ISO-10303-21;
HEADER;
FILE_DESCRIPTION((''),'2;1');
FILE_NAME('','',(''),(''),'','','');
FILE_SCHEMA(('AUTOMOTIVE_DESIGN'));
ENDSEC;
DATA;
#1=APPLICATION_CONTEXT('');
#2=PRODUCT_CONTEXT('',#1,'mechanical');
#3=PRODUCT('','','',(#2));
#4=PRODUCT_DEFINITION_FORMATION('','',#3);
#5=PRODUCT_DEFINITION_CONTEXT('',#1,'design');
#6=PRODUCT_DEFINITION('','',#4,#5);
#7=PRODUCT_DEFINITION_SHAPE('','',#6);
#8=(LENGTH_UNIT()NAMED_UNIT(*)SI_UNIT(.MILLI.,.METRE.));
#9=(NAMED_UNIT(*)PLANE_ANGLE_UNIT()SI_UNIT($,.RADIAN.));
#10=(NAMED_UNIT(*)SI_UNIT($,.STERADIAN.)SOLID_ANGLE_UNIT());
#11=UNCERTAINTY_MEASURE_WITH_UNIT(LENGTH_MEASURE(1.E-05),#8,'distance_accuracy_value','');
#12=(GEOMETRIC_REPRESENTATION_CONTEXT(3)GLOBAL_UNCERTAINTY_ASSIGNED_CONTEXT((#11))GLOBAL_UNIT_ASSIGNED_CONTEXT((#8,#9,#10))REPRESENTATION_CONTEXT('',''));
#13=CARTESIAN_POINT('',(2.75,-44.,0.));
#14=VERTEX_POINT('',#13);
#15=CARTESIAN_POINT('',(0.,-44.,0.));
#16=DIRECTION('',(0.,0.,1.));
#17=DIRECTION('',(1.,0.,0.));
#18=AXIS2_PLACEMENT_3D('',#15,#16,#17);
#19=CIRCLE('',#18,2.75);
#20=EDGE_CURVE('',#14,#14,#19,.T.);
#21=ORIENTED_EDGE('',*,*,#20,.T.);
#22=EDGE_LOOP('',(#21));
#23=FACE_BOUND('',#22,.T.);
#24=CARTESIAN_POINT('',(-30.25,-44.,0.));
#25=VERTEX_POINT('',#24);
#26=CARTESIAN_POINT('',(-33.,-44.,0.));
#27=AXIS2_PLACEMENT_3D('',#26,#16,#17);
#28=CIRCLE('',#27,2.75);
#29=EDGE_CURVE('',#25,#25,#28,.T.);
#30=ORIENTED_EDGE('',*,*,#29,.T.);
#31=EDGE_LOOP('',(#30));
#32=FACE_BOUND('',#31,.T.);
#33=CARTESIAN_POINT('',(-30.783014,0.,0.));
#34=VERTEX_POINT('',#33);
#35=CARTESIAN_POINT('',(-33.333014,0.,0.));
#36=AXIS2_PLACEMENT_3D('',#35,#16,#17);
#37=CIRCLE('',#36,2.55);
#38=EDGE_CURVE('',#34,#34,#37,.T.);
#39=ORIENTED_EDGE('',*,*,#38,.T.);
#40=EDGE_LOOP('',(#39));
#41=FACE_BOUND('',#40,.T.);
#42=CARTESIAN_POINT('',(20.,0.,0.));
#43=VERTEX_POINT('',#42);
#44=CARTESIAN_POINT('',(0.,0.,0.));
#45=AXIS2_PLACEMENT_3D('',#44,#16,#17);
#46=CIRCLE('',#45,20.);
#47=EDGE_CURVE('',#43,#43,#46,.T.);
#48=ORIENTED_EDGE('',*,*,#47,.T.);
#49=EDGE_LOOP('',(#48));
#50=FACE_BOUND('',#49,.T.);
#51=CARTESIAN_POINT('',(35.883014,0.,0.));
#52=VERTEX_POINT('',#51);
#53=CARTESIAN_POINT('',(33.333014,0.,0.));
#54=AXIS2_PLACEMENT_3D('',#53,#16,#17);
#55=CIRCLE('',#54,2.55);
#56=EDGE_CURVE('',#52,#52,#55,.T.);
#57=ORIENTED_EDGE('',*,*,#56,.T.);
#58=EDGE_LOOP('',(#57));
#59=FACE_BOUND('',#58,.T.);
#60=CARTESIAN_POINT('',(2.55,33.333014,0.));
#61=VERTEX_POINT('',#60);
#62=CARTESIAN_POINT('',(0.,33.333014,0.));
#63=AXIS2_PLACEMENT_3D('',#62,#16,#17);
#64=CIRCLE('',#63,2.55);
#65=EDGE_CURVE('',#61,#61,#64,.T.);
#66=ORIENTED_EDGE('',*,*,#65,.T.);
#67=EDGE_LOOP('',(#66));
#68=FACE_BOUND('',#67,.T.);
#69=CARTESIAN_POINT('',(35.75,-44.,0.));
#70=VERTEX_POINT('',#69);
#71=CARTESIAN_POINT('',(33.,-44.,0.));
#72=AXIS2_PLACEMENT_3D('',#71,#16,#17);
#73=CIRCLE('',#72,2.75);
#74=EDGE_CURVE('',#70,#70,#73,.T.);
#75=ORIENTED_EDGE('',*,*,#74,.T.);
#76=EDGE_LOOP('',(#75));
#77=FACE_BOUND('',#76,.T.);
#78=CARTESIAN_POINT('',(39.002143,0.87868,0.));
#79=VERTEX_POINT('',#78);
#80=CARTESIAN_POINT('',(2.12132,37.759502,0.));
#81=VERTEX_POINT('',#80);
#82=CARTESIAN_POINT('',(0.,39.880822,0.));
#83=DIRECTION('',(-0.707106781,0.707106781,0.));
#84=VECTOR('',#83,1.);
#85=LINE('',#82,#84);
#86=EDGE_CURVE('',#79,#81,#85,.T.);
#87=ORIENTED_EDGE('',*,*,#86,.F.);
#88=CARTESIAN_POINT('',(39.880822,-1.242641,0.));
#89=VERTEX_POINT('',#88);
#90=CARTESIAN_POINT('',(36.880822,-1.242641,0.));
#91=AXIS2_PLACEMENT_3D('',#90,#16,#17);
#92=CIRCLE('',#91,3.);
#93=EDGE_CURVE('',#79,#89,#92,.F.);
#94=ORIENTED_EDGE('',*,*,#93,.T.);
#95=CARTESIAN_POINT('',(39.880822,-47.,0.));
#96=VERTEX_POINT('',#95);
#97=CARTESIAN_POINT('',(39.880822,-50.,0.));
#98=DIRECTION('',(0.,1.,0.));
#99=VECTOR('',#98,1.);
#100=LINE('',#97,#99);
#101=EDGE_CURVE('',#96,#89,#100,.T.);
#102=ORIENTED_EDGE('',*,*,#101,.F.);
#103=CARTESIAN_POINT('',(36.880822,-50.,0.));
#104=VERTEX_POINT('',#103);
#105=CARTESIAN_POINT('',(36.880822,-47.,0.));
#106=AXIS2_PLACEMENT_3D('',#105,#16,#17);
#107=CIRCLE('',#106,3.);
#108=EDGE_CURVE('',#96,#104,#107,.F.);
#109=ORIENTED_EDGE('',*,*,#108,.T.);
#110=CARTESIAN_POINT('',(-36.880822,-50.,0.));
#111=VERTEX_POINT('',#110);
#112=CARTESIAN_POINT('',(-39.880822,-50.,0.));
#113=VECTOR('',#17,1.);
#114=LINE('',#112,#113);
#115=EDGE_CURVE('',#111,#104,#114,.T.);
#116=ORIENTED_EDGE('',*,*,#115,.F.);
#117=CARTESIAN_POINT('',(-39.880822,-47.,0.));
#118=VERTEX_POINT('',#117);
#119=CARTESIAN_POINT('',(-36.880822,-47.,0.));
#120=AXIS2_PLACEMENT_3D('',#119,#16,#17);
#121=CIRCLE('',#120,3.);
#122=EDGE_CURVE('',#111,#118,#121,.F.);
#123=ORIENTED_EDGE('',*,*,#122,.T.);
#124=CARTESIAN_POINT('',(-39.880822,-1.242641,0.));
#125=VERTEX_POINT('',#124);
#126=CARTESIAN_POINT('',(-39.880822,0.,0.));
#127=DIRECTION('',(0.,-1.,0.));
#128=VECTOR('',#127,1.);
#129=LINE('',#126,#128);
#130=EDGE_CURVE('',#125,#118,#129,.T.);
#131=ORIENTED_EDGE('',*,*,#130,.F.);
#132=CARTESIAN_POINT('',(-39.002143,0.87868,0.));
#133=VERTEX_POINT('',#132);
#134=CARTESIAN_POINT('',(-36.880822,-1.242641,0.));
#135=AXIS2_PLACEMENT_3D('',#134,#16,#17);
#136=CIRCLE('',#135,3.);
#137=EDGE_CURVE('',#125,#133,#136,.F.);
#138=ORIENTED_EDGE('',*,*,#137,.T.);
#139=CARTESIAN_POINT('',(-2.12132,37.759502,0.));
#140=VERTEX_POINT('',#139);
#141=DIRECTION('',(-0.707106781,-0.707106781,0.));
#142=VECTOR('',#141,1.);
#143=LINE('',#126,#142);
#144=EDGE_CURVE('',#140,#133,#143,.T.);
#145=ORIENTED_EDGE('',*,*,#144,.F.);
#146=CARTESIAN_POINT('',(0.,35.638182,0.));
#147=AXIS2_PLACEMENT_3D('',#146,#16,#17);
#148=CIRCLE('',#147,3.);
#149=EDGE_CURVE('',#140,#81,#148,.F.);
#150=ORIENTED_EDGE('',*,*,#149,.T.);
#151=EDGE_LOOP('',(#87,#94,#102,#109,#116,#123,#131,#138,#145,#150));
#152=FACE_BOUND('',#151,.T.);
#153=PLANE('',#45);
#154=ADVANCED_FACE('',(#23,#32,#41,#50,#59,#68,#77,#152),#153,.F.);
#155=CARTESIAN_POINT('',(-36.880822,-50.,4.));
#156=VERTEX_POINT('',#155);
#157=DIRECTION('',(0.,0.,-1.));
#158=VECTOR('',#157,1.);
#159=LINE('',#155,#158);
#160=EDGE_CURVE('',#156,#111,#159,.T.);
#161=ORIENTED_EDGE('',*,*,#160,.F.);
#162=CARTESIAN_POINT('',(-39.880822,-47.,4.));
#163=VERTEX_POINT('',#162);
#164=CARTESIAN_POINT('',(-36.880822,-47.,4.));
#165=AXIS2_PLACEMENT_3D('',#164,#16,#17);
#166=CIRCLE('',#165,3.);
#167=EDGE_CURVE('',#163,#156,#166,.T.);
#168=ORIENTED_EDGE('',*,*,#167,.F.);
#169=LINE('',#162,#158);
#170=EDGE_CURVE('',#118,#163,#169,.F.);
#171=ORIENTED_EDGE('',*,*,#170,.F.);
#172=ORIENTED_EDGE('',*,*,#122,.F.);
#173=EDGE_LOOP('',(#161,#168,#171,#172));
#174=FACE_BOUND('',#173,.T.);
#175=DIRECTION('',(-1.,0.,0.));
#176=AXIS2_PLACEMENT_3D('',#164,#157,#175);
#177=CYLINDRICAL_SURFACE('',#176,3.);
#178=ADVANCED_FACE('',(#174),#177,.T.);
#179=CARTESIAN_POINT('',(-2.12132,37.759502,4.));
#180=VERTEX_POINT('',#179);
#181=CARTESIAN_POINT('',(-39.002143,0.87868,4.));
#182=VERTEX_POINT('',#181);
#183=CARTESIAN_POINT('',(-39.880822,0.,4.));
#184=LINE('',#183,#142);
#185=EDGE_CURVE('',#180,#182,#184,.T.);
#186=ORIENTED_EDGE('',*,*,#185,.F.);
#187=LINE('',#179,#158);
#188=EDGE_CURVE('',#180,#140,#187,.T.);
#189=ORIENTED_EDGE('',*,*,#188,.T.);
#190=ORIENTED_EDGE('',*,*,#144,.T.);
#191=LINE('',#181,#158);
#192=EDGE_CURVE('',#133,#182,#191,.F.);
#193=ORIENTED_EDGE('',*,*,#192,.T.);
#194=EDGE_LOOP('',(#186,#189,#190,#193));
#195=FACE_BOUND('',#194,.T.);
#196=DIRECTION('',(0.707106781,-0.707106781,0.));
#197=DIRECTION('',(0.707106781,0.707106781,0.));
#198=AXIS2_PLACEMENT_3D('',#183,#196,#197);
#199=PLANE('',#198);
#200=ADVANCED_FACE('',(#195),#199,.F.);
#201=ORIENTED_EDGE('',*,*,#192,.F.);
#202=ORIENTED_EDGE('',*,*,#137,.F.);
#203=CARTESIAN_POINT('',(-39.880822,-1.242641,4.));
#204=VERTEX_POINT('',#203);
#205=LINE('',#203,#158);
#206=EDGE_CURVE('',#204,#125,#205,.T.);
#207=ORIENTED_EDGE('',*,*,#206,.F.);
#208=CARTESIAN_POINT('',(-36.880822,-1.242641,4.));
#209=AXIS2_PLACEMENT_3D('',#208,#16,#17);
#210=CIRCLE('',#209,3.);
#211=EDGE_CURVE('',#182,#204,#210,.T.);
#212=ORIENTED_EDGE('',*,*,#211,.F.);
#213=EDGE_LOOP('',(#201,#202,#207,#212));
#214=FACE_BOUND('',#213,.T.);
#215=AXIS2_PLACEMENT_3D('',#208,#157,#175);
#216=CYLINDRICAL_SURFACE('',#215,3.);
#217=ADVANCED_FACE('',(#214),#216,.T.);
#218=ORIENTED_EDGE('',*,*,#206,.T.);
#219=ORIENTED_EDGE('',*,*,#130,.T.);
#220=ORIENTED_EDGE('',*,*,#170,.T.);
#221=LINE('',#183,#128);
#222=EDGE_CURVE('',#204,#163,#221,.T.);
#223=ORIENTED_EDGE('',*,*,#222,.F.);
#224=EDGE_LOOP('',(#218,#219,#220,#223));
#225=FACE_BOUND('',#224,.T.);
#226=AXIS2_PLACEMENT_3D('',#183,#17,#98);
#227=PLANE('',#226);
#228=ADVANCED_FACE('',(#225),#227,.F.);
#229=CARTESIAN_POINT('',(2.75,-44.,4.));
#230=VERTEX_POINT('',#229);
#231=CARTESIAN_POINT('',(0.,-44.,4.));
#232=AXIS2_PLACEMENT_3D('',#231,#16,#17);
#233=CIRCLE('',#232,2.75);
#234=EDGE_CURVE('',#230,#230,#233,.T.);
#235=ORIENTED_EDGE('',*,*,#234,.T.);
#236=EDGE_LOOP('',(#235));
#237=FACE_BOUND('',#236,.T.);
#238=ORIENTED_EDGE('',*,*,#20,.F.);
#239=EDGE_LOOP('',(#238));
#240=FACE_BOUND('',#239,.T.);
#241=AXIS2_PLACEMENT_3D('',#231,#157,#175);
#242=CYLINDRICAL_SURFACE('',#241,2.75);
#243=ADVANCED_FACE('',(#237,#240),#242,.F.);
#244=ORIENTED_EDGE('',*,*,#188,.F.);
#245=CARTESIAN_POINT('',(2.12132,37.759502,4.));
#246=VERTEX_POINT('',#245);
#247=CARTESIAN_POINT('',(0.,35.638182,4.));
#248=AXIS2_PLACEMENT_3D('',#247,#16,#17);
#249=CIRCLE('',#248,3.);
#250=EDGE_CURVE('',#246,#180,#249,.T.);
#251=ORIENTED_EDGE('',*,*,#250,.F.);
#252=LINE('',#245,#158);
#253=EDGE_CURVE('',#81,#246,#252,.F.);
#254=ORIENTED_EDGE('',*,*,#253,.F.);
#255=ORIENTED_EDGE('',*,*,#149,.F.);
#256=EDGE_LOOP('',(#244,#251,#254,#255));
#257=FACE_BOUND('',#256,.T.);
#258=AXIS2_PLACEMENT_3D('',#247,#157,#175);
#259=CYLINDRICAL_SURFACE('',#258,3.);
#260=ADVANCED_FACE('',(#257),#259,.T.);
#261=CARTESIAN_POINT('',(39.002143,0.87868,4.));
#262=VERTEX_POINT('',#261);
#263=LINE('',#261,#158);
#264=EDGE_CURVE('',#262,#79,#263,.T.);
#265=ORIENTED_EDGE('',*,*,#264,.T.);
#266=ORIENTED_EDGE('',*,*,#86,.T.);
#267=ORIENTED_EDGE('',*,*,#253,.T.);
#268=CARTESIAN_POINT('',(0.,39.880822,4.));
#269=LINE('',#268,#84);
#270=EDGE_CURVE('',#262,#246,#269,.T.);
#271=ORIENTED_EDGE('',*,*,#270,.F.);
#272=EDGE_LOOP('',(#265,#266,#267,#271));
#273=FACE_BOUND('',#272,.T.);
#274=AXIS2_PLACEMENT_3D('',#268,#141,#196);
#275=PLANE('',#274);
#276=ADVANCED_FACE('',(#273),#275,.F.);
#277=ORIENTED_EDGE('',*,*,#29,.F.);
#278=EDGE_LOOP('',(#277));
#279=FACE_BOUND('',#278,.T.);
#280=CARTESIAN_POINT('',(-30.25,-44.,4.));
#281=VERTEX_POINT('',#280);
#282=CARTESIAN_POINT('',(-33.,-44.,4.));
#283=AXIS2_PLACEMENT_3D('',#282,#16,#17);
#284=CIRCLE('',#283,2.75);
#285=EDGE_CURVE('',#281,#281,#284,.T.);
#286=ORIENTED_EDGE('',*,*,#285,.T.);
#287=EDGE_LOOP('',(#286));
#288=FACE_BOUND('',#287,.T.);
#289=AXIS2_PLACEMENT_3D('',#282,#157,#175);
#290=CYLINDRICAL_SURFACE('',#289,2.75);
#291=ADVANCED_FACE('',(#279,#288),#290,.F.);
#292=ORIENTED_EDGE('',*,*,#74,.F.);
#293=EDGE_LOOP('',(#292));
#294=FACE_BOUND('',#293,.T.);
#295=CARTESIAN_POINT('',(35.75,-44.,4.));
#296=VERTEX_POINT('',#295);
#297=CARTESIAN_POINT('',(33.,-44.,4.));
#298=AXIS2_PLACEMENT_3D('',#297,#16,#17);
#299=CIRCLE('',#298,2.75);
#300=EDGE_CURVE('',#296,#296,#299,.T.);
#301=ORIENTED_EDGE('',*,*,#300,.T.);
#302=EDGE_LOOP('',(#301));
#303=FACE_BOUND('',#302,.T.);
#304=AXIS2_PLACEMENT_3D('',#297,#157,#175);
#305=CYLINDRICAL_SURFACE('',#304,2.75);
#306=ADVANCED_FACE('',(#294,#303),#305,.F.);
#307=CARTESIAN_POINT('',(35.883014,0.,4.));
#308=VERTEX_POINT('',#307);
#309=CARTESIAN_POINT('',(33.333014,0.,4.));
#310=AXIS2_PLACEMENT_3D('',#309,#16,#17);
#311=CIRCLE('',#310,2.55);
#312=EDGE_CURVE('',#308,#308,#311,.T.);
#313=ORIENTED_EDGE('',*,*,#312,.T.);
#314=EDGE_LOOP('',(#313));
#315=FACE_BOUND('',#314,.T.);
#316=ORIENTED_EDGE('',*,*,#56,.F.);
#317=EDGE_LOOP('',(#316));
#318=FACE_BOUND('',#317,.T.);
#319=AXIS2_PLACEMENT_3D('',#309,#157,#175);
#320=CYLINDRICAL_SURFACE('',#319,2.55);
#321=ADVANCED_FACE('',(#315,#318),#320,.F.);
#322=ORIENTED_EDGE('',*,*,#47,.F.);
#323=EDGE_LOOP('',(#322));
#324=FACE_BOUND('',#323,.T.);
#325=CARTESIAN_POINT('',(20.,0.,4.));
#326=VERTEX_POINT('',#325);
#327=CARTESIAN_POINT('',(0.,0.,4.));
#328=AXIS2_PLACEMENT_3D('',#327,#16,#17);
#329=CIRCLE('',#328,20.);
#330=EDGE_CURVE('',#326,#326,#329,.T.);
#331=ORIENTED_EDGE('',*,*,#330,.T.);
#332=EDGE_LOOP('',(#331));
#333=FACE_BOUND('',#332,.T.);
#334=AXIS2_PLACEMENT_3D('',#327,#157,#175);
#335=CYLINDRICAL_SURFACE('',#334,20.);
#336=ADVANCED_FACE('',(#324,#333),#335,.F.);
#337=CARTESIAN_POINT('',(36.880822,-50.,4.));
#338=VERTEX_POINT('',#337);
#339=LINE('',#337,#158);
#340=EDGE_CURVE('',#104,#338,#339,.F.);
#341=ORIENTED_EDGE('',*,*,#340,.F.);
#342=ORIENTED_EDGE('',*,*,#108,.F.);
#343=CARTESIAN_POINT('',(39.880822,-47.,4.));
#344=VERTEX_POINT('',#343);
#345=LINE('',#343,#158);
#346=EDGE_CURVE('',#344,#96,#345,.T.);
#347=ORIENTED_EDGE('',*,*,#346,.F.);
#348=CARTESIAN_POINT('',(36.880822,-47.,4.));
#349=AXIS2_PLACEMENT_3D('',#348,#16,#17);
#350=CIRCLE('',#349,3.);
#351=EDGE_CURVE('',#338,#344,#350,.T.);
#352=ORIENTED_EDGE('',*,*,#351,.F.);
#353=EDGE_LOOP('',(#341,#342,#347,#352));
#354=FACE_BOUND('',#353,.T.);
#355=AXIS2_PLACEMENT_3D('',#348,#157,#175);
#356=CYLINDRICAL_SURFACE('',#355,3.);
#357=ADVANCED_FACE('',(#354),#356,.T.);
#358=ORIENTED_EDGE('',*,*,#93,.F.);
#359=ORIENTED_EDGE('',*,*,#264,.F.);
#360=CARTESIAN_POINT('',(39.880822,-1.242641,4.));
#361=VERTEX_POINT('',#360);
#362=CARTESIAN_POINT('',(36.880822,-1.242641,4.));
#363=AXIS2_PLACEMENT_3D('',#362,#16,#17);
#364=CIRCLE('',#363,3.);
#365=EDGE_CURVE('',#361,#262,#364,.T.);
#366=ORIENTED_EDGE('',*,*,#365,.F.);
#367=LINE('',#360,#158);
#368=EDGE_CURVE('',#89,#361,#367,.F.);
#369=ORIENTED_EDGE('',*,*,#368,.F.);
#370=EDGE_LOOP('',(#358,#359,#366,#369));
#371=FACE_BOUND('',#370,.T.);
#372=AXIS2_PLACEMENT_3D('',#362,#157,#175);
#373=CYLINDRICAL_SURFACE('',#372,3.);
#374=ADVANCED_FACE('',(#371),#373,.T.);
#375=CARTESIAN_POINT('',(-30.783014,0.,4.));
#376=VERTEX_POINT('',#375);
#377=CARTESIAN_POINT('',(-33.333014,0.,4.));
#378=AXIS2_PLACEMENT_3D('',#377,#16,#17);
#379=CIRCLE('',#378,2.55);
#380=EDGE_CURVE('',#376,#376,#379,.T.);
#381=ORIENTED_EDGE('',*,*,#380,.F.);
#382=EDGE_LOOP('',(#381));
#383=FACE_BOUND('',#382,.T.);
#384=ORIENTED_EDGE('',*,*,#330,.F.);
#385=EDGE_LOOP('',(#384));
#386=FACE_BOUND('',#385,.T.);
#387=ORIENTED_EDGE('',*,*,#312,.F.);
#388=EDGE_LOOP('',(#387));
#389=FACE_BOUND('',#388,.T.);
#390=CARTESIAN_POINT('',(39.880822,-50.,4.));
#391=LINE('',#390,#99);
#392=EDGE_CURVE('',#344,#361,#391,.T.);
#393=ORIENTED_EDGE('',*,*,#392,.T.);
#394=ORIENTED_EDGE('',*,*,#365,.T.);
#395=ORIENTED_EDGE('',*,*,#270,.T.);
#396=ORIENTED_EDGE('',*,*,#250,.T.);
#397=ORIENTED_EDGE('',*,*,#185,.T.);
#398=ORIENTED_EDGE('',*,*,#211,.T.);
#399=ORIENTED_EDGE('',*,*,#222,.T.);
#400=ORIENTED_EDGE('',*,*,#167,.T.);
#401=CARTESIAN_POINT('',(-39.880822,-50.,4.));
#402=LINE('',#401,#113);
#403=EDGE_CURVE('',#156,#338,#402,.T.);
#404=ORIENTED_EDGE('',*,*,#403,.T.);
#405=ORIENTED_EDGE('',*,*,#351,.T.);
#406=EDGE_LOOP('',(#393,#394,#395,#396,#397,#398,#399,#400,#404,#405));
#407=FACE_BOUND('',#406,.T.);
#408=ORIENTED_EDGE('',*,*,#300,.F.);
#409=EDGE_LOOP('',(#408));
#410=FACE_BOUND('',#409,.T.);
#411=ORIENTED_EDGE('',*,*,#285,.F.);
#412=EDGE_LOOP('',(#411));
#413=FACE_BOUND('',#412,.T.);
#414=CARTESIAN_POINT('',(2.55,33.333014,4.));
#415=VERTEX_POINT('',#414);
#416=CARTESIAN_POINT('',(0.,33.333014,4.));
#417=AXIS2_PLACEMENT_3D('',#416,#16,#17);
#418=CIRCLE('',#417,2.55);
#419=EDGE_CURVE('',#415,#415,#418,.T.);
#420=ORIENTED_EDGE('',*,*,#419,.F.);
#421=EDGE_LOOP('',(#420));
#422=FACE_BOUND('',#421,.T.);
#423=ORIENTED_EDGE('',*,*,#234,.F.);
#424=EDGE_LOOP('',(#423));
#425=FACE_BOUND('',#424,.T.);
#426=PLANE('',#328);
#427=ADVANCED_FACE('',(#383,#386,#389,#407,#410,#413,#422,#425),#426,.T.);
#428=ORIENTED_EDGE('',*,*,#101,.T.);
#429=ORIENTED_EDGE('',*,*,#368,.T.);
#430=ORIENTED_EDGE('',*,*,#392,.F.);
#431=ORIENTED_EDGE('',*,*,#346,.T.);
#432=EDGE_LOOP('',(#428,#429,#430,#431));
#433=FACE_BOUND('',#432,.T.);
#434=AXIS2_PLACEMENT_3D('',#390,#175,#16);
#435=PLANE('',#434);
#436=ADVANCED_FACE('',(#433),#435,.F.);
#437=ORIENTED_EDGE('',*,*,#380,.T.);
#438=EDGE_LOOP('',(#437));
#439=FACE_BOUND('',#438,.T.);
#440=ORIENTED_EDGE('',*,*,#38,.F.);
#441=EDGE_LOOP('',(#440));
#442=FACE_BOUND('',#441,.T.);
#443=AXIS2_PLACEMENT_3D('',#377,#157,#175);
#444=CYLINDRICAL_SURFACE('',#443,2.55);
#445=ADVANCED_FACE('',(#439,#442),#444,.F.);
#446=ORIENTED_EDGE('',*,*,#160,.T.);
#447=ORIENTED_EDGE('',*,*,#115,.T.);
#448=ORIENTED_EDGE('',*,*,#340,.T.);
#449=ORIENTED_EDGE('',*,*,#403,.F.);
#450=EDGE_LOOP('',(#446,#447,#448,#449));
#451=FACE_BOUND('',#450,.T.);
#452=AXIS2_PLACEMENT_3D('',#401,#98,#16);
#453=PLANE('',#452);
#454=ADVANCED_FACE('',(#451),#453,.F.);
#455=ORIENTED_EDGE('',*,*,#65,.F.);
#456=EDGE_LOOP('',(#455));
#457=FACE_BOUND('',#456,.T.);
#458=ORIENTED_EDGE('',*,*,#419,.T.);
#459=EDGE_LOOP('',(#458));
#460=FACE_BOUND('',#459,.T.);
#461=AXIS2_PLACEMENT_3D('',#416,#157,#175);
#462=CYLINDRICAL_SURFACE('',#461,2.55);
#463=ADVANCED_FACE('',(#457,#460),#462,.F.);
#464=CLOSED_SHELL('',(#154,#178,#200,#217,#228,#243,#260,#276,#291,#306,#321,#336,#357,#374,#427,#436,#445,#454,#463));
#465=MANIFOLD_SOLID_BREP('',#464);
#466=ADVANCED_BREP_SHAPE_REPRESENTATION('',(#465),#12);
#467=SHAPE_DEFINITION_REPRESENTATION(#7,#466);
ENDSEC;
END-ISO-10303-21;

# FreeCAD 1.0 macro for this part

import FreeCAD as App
import Part
import Sketcher

V = App.Vector


def edges_at(feature, points):
    """Names of the edges that pass closest to the given points."""
    edges = feature.Shape.Edges
    near = lambda p: min(range(len(edges)), key=lambda i: edges[i].distToShape(Part.Vertex(*p))[0])
    return sorted({f"Edge{near(p) + 1}" for p in points})

doc = App.newDocument("Part")
params = doc.addObject("Spreadsheet::Sheet", "Params")
for row, (alias, value) in enumerate([
    ("sketch1_diameter", "40 mm"),
    ("sketch1_diameter2", "5.5 mm"),
    ("sketch1_diameter3", "5.1 mm"),
    ("sketch1_height", "50 mm"),
    ("sketch1_length", "56.4 mm"),
    ("pad1_length", "4 mm"),
    ("fillet_radius", "3 mm"),
], start=1):
    params.set(f"A{row}", alias)
    params.set(f"B{row}", "=" + value)
    params.setAlias(f"B{row}", alias)

body = doc.addObject("PartDesign::Body", "Body")

# Sketch on XY plane
sketch1 = doc.addObject("Sketcher::SketchObject", "Sketch")
body.addObject(sketch1)
sketch1.AttachmentSupport = (doc.XY_Plane, [""])
sketch1.MapMode = "FlatFace"
sketch1.addGeometry(Part.LineSegment(V(0, 39.880822, 0), V(-39.880822, 0, 0)), False)
sketch1.addGeometry(Part.LineSegment(V(-39.880822, 0, 0), V(-39.880822, -50, 0)), False)
sketch1.addGeometry(Part.LineSegment(V(-39.880822, -50, 0), V(39.880822, -50, 0)), False)
sketch1.addGeometry(Part.LineSegment(V(39.880822, -50, 0), V(39.880822, 0, 0)), False)
sketch1.addGeometry(Part.LineSegment(V(39.880822, 0, 0), V(0, 39.880822, 0)), False)
sketch1.addGeometry(Part.Circle(V(33, -44, 0), V(0, 0, 1), 2.75), False)
sketch1.addGeometry(Part.Circle(V(0, -44, 0), V(0, 0, 1), 2.75), False)
sketch1.addGeometry(Part.Circle(V(-33, -44, 0), V(0, 0, 1), 2.75), False)
sketch1.addGeometry(Part.Circle(V(33.333014, 0, 0), V(0, 0, 1), 2.55), False)
sketch1.addGeometry(Part.Circle(V(0, 0, 0), V(0, 0, 1), 20), False)
sketch1.addGeometry(Part.Circle(V(0, 33.333014, 0), V(0, 0, 1), 2.55), False)
sketch1.addGeometry(Part.Circle(V(-33.333014, 0, 0), V(0, 0, 1), 2.55), False)
sketch1.addConstraint(Sketcher.Constraint("Coincident", 0, 2, 1, 1))
sketch1.addConstraint(Sketcher.Constraint("Coincident", 1, 2, 2, 1))
sketch1.addConstraint(Sketcher.Constraint("Coincident", 2, 2, 3, 1))
sketch1.addConstraint(Sketcher.Constraint("Coincident", 3, 2, 4, 1))
sketch1.addConstraint(Sketcher.Constraint("Coincident", 4, 2, 0, 1))
sketch1.addConstraint(Sketcher.Constraint("Vertical", 1))
sketch1.addConstraint(Sketcher.Constraint("Horizontal", 2))
sketch1.addConstraint(Sketcher.Constraint("Vertical", 3))
sketch1.addConstraint(Sketcher.Constraint("Coincident", 9, 3, -1, 1))
sketch1.addConstraint(Sketcher.Constraint("Equal", 5, 6))
sketch1.addConstraint(Sketcher.Constraint("Equal", 6, 7))
sketch1.addConstraint(Sketcher.Constraint("Equal", 8, 10))
sketch1.addConstraint(Sketcher.Constraint("Equal", 10, 11))
sketch1.addConstraint(Sketcher.Constraint("Symmetric", 8, 3, 11, 3, -1, 1))
sketch1.addConstraint(Sketcher.Constraint("Symmetric", 0, 2, 3, 2, -1, 1))
sketch1.addConstraint(Sketcher.Constraint("Symmetric", 5, 3, 7, 3, -2))
sketch1.addConstraint(Sketcher.Constraint("PointOnObject", 6, 3, -2))
sketch1.addConstraint(Sketcher.Constraint("PointOnObject", 8, 3, -1))
sketch1.addConstraint(Sketcher.Constraint("PointOnObject", 10, 3, -2))
sketch1.addConstraint(Sketcher.Constraint("PointOnObject", 0, 2, -1))
sketch1.addConstraint(Sketcher.Constraint("PointOnObject", 4, 2, -2))
sketch1.addConstraint(Sketcher.Constraint("Perpendicular", 0, 4))
sketch1.addConstraint(Sketcher.Constraint("Horizontal", 5, 3, 6, 3))
sketch1.addConstraint(Sketcher.Constraint("Diameter", 9, 40.0))
sketch1.addConstraint(Sketcher.Constraint("Diameter", 5, 5.5))
sketch1.addConstraint(Sketcher.Constraint("Diameter", 8, 5.1))
sketch1.addConstraint(Sketcher.Constraint("DistanceY", 1, 2, 1, 1, 50.0))
sketch1.addConstraint(Sketcher.Constraint("DistanceX", -1, 1, 5, 3, 33.0))
sketch1.addConstraint(Sketcher.Constraint("DistanceY", 5, 3, -1, 1, 44.0))
sketch1.addConstraint(Sketcher.Constraint("Distance", 0, 56.4))
sketch1.addConstraint(Sketcher.Constraint("DistanceX", 0, 2, 11, 3, 6.547809))
sketch1.addConstraint(Sketcher.Constraint("DistanceY", 10, 3, 4, 2, 6.547809))
sketch1.setExpression("Constraints[23]", "Params.sketch1_diameter")
sketch1.setExpression("Constraints[24]", "Params.sketch1_diameter2")
sketch1.setExpression("Constraints[25]", "Params.sketch1_diameter3")
sketch1.setExpression("Constraints[26]", "Params.sketch1_height")
sketch1.setExpression("Constraints[29]", "Params.sketch1_length")
pad1 = doc.addObject("PartDesign::Pad", "Pad")
body.addObject(pad1)
pad1.Profile = sketch1
pad1.setExpression("Length", "Params.pad1_length")
doc.recompute()

fillet = doc.addObject("PartDesign::Fillet", "Fillet")
body.addObject(fillet)
fillet.Base = (pad1, edges_at(pad1, [
    (-39.881, 0, 2),
    (0, 39.881, 2),
    (39.881, 0, 2),
    (39.881, -50, 2),
    (-39.881, -50, 2),
]))
fillet.setExpression("Radius", "Params.fillet_radius")

doc.recompute()
